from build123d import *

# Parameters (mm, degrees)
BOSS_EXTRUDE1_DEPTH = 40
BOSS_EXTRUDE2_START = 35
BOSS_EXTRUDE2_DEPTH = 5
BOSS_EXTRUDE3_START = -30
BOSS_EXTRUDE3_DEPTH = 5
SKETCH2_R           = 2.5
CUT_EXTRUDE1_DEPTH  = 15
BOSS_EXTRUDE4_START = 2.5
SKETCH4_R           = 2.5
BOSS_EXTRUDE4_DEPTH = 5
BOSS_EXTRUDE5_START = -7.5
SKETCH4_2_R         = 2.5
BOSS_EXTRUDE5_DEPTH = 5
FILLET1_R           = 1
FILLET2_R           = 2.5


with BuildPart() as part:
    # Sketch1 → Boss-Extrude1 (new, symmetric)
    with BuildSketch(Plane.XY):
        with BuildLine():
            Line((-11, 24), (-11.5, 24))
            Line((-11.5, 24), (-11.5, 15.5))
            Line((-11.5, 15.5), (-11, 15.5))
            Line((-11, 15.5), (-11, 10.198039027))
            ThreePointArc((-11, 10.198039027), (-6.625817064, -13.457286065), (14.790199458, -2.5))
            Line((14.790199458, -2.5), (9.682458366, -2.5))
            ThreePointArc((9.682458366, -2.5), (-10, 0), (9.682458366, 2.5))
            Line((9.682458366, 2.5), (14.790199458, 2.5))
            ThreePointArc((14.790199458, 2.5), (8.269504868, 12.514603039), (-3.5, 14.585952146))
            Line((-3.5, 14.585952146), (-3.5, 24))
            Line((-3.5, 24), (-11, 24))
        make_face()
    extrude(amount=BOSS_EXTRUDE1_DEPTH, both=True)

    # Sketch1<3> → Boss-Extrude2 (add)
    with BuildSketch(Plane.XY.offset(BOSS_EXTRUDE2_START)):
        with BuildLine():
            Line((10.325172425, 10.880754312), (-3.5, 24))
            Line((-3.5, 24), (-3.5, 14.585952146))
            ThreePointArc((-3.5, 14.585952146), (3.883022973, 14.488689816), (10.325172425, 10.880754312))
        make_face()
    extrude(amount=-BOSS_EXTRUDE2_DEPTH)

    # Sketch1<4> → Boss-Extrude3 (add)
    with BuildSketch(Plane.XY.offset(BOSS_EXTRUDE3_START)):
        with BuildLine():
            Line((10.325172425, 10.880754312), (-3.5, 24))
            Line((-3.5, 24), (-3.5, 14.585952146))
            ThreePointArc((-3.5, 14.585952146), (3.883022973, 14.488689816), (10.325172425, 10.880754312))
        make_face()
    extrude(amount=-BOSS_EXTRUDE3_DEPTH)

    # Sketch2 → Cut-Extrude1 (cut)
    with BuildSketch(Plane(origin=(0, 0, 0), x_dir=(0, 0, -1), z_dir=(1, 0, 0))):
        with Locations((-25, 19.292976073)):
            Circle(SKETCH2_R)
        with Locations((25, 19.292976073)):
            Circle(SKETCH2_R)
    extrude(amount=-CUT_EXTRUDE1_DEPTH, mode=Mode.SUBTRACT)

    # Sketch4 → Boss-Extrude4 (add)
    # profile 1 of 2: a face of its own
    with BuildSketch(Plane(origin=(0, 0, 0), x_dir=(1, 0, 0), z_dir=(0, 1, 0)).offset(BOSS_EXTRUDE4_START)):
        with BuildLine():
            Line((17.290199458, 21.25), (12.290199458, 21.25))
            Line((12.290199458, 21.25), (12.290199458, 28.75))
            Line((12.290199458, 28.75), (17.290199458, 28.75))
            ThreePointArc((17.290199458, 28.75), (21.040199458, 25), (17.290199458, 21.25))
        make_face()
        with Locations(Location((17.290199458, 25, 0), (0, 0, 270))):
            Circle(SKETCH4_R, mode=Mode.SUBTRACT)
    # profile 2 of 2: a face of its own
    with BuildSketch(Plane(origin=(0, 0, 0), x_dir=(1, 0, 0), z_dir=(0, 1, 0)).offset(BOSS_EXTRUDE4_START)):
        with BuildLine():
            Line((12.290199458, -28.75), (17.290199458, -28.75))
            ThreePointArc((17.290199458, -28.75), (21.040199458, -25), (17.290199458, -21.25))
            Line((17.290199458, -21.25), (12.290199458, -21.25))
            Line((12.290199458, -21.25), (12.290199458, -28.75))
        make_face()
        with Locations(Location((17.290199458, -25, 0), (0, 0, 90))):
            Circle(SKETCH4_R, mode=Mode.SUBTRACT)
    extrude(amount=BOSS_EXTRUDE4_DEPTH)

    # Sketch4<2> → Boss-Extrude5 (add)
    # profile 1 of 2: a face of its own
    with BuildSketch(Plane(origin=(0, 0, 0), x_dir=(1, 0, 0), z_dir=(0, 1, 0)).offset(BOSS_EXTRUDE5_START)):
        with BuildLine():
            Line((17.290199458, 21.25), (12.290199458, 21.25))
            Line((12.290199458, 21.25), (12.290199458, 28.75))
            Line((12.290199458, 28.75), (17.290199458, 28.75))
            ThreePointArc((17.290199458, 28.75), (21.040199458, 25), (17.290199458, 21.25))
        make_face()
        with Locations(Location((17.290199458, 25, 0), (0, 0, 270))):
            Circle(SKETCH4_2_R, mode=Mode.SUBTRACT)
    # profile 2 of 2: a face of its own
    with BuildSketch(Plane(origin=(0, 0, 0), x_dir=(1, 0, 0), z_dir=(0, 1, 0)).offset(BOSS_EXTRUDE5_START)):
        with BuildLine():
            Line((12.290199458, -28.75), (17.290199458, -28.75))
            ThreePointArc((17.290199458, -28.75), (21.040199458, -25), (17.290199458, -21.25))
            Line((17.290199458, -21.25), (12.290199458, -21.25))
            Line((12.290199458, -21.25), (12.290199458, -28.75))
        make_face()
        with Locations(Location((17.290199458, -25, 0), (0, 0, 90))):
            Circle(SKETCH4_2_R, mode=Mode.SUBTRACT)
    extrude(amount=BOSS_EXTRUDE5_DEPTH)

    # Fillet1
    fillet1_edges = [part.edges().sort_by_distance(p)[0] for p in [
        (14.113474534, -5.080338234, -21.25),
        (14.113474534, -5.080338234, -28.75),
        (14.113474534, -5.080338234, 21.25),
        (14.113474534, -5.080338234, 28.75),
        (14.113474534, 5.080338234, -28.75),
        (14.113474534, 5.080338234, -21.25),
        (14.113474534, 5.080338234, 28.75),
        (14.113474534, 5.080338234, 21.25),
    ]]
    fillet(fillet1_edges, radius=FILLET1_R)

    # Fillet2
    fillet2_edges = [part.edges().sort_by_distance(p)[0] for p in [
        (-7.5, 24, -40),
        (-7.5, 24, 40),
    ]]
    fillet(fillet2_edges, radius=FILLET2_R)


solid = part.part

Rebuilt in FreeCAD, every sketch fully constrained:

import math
import FreeCAD as App
import Part
import Sketcher
Q = App.Units.Quantity


def edges_at(feature, points):
    """Names of the edges that pass closest to the given points."""
    edges = feature.Shape.Edges
    near = lambda p: min(range(len(edges)), key=lambda i: edges[i].distToShape(Part.Vertex(*p))[0])
    return sorted({f"Edge{near(p) + 1}" for p in points})

doc = App.newDocument("Part")
params = doc.addObject("Spreadsheet::Sheet", "Params")
for row, (alias, value) in enumerate([
    ("sketch1_radius", "15 mm"),
    ("sketch1_radius2", "10 mm"),
    ("sketch1_width", "8 mm"),
    ("sketch1_width2", "0.5 mm"),
    ("sketch1_height", "8.5 mm"),
    ("pad1_length", "80 mm"),
    ("sketch2_radius", "15 mm"),
    ("pad2_length", "5 mm"),
    ("sketch3_radius", "15 mm"),
    ("pad3_length", "5 mm"),
    ("sketch4_diameter", "5 mm"),
    ("pocket1_length", "15 mm"),
    ("sketch5_diameter", "5 mm"),
    ("sketch5_width", "5 mm"),
    ("sketch5_radius", "3.75 mm"),
    ("pad4_length", "5 mm"),
    ("sketch6_diameter", "5 mm"),
    ("sketch6_width", "5 mm"),
    ("sketch6_radius", "3.75 mm"),
    ("pad5_length", "5 mm"),
    ("fillet_radius", "1 mm"),
    ("fillet2_radius", "2.5 mm"),
], start=1):
    params.set(f"A{row}", alias)
    params.set(f"B{row}", "=" + value)
    params.setAlias(f"B{row}", alias)

body = doc.addObject("PartDesign::Body", "Body")

sketch1 = body.newObject("Sketcher::SketchObject", "Sketch")
sketch1.AttachmentSupport = (doc.getObject("XY_Plane"), [""])
sketch1.MapMode = "FlatFace"
sketch1.addGeometry([
    Part.LineSegment(App.Vector(-11.5, 24, 0), App.Vector(-11.5, 15.5, 0)),
    Part.LineSegment(App.Vector(-11.5, 15.5, 0), App.Vector(-11, 15.5, 0)),
    Part.LineSegment(App.Vector(-11, 15.5, 0), App.Vector(-11, 10.2, 0)),
    Part.ArcOfCircle(Part.Circle(App.Vector(0, 0, 0), App.Vector(0, 0, 1), 15), math.radians(137), math.radians(350)),
    Part.LineSegment(App.Vector(14.8, -2.5, 0), App.Vector(9.7, -2.5, 0)),
    Part.ArcOfCircle(Part.Circle(App.Vector(0, 0, 0), App.Vector(0, 0, 1), 10), math.radians(14), math.radians(346)),
    Part.LineSegment(App.Vector(9.7, 2.5, 0), App.Vector(14.8, 2.5, 0)),
    Part.ArcOfCircle(Part.Circle(App.Vector(0, 0, 0), App.Vector(0, 0, 1), 15), math.radians(10), math.radians(103)),
    Part.LineSegment(App.Vector(-3.5, 14.6, 0), App.Vector(-3.5, 24, 0)),
    Part.LineSegment(App.Vector(-3.5, 24, 0), App.Vector(-11.5, 24, 0)),
], False)
sketch1.addConstraint([
    Sketcher.Constraint("Coincident", 0, 2, 1, 1),
    Sketcher.Constraint("Coincident", 1, 2, 2, 1),
    Sketcher.Constraint("Coincident", 2, 2, 3, 1),
    Sketcher.Constraint("Coincident", 3, 2, 4, 1),
    Sketcher.Constraint("Coincident", 4, 2, 5, 2),
    Sketcher.Constraint("Coincident", 5, 1, 6, 1),
    Sketcher.Constraint("Coincident", 6, 2, 7, 1),
    Sketcher.Constraint("Coincident", 7, 2, 8, 1),
    Sketcher.Constraint("Coincident", 8, 2, 9, 1),
    Sketcher.Constraint("Coincident", 9, 2, 0, 1),
    Sketcher.Constraint("Vertical", 0),
    Sketcher.Constraint("Horizontal", 1),
    Sketcher.Constraint("Vertical", 2),
    Sketcher.Constraint("Horizontal", 4),
    Sketcher.Constraint("Horizontal", 6),
    Sketcher.Constraint("Vertical", 8),
    Sketcher.Constraint("Horizontal", 9),
    Sketcher.Constraint("Coincident", 3, 3, -1, 1),
    Sketcher.Constraint("Coincident", 5, 3, -1, 1),
    Sketcher.Constraint("Coincident", 7, 3, -1, 1),
    Sketcher.Constraint("Equal", 3, 7),
    Sketcher.Constraint("Vertical", 4, 2, 5, 1),
    Sketcher.Constraint("Radius", 3, Q("15 mm")),
    Sketcher.Constraint("Radius", 5, Q("10 mm")),
    Sketcher.Constraint("DistanceX", 9, 2, 9, 1, Q("8 mm")),
    Sketcher.Constraint("DistanceX", 1, 1, 1, 2, Q("0.5 mm")),
    Sketcher.Constraint("DistanceY", 0, 2, 0, 1, Q("8.5 mm")),
    Sketcher.Constraint("DistanceX", 1, 2, -1, 1, Q("11 mm")),
    Sketcher.Constraint("DistanceY", -1, 1, 8, 2, Q("24 mm")),
    Sketcher.Constraint("DistanceY", 3, 2, 1, 2, Q("18 mm")),
])
sketch1.setExpression("Constraints[22]", "Params.sketch1_radius")
sketch1.setExpression("Constraints[23]", "Params.sketch1_radius2")
sketch1.setExpression("Constraints[24]", "Params.sketch1_width")
sketch1.setExpression("Constraints[25]", "Params.sketch1_width2")
sketch1.setExpression("Constraints[26]", "Params.sketch1_height")
pad1 = body.newObject("PartDesign::Pad", "Pad")
pad1.Profile = sketch1
pad1.setExpression("Length", "Params.pad1_length")
pad1.Midplane = True

sketch2 = body.newObject("Sketcher::SketchObject", "Sketch001")
sketch2.AttachmentSupport = (doc.getObject("XY_Plane"), [""])
sketch2.MapMode = "FlatFace"
sketch2.AttachmentOffset = App.Placement(App.Vector(0, 0, 35), App.Rotation())
sketch2.addGeometry([
    Part.LineSegment(App.Vector(10, 11, 0), App.Vector(-4, 24, 0)),
    Part.LineSegment(App.Vector(-4, 24, 0), App.Vector(-4, 15, 0)),
    Part.ArcOfCircle(Part.Circle(App.Vector(0, 0, 0), App.Vector(0, 0, 1), 15), math.radians(47), math.radians(103)),
], False)
sketch2.addConstraint([
    Sketcher.Constraint("Coincident", 0, 2, 1, 1),
    Sketcher.Constraint("Coincident", 1, 2, 2, 2),
    Sketcher.Constraint("Tangent", 2, 1, 0, 1),
    Sketcher.Constraint("Vertical", 1),
    Sketcher.Constraint("Coincident", 2, 3, -1, 1),
    Sketcher.Constraint("Radius", 2, Q("15 mm")),
    Sketcher.Constraint("DistanceY", -1, 1, 0, 2, Q("24 mm")),
    Sketcher.Constraint("DistanceX", 0, 2, -1, 1, Q("3.5 mm")),
])
sketch2.setExpression("Constraints[5]", "Params.sketch2_radius")
pad2 = body.newObject("PartDesign::Pad", "Pad001")
pad2.Profile = sketch2
pad2.setExpression("Length", "Params.pad2_length")
pad2.Reversed = True

sketch3 = body.newObject("Sketcher::SketchObject", "Sketch002")
sketch3.AttachmentSupport = (doc.getObject("XY_Plane"), [""])
sketch3.MapMode = "FlatFace"
sketch3.AttachmentOffset = App.Placement(App.Vector(0, 0, -30), App.Rotation())
sketch3.addGeometry([
    Part.LineSegment(App.Vector(10, 11, 0), App.Vector(-4, 24, 0)),
    Part.LineSegment(App.Vector(-4, 24, 0), App.Vector(-4, 15, 0)),
    Part.ArcOfCircle(Part.Circle(App.Vector(0, 0, 0), App.Vector(0, 0, 1), 15), math.radians(47), math.radians(103)),
], False)
sketch3.addConstraint([
    Sketcher.Constraint("Coincident", 0, 2, 1, 1),
    Sketcher.Constraint("Coincident", 1, 2, 2, 2),
    Sketcher.Constraint("Tangent", 2, 1, 0, 1),
    Sketcher.Constraint("Vertical", 1),
    Sketcher.Constraint("Coincident", 2, 3, -1, 1),
    Sketcher.Constraint("Radius", 2, Q("15 mm")),
    Sketcher.Constraint("DistanceY", -1, 1, 0, 2, Q("24 mm")),
    Sketcher.Constraint("DistanceX", 0, 2, -1, 1, Q("3.5 mm")),
])
sketch3.setExpression("Constraints[5]", "Params.sketch3_radius")
pad3 = body.newObject("PartDesign::Pad", "Pad002")
pad3.Profile = sketch3
pad3.setExpression("Length", "Params.pad3_length")
pad3.Reversed = True

sketch4 = body.newObject("Sketcher::SketchObject", "Sketch003")
sketch4.AttachmentSupport = (doc.getObject("YZ_Plane"), [""])
sketch4.MapMode = "FlatFace"
sketch4.addGeometry([
    Part.Circle(App.Vector(19.3, 25, 0), App.Vector(0, 0, 1), 2.5),
    Part.Circle(App.Vector(19.3, -25, 0), App.Vector(0, 0, 1), 2.5),
], False)
sketch4.addConstraint([
    Sketcher.Constraint("Equal", 0, 1),
    Sketcher.Constraint("Symmetric", 0, 3, 1, 3, -1),
    Sketcher.Constraint("Diameter", 0, Q("5 mm")),
    Sketcher.Constraint("DistanceY", -1, 1, 0, 3, Q("25 mm")),
    Sketcher.Constraint("DistanceX", -1, 1, 0, 3, Q("19.292976 mm")),
])
sketch4.setExpression("Constraints[2]", "Params.sketch4_diameter")
pocket1 = body.newObject("PartDesign::Pocket", "Pocket")
pocket1.Profile = sketch4
pocket1.setExpression("Length", "Params.pocket1_length")

sketch5 = body.newObject("Sketcher::SketchObject", "Sketch004")
sketch5.AttachmentSupport = (doc.getObject("XZ_Plane"), [""])
sketch5.MapMode = "FlatFace"
sketch5.AttachmentOffset = App.Placement(App.Vector(0, 0, -2.5), App.Rotation())
sketch5.addGeometry([
    Part.LineSegment(App.Vector(12.3, -21.2, 0), App.Vector(17.3, -21.2, 0)),
    Part.ArcOfCircle(Part.Circle(App.Vector(17.3, -25, 0), App.Vector(0, 0, 1), 3.8), math.radians(-90), math.radians(90)),
    Part.LineSegment(App.Vector(17.3, -28.8, 0), App.Vector(12.3, -28.8, 0)),
    Part.LineSegment(App.Vector(12.3, -28.8, 0), App.Vector(12.3, -21.2, 0)),
    Part.Circle(App.Vector(17.3, -25, 0), App.Vector(0, 0, 1), 2.5),
    Part.LineSegment(App.Vector(12.3, 28.8, 0), App.Vector(17.3, 28.8, 0)),
    Part.ArcOfCircle(Part.Circle(App.Vector(17.3, 25, 0), App.Vector(0, 0, 1), 3.8), math.radians(-90), math.radians(90)),
    Part.LineSegment(App.Vector(17.3, 21.2, 0), App.Vector(12.3, 21.2, 0)),
    Part.LineSegment(App.Vector(12.3, 21.2, 0), App.Vector(12.3, 28.8, 0)),
    Part.Circle(App.Vector(17.3, 25, 0), App.Vector(0, 0, 1), 2.5),
], False)
sketch5.addConstraint([
    Sketcher.Constraint("Tangent", 0, 2, 1, 2),
    Sketcher.Constraint("Tangent", 1, 1, 2, 1),
    Sketcher.Constraint("Coincident", 2, 2, 3, 1),
    Sketcher.Constraint("Coincident", 3, 2, 0, 1),
    Sketcher.Constraint("Tangent", 5, 2, 6, 2),
    Sketcher.Constraint("Tangent", 6, 1, 7, 1),
    Sketcher.Constraint("Coincident", 7, 2, 8, 1),
    Sketcher.Constraint("Coincident", 8, 2, 5, 1),
    Sketcher.Constraint("Horizontal", 0),
    Sketcher.Constraint("Horizontal", 2),
    Sketcher.Constraint("Vertical", 3),
    Sketcher.Constraint("Horizontal", 5),
    Sketcher.Constraint("Horizontal", 7),
    Sketcher.Constraint("Vertical", 8),
    Sketcher.Constraint("Coincident", 4, 3, 1, 3),
    Sketcher.Constraint("Coincident", 9, 3, 6, 3),
    Sketcher.Constraint("Equal", 1, 6),
    Sketcher.Constraint("Equal", 4, 9),
    Sketcher.Constraint("Symmetric", 1, 3, 6, 3, -1),
    Sketcher.Constraint("Vertical", 3, 2, 7, 2),
    Sketcher.Constraint("Diameter", 4, Q("5 mm")),
    Sketcher.Constraint("DistanceX", 0, 1, 0, 2, Q("5 mm")),
    Sketcher.Constraint("Radius", 1, Q("3.75 mm")),
    Sketcher.Constraint("DistanceY", 1, 3, -1, 1, Q("25 mm")),
    Sketcher.Constraint("DistanceX", -1, 1, 1, 3, Q("17.290199 mm")),
])
sketch5.setExpression("Constraints[20]", "Params.sketch5_diameter")
sketch5.setExpression("Constraints[21]", "Params.sketch5_width")
sketch5.setExpression("Constraints[22]", "Params.sketch5_radius")
pad4 = body.newObject("PartDesign::Pad", "Pad003")
pad4.Profile = sketch5
pad4.setExpression("Length", "Params.pad4_length")
pad4.Reversed = True

sketch6 = body.newObject("Sketcher::SketchObject", "Sketch005")
sketch6.AttachmentSupport = (doc.getObject("XZ_Plane"), [""])
sketch6.MapMode = "FlatFace"
sketch6.AttachmentOffset = App.Placement(App.Vector(0, 0, 7.5), App.Rotation())
sketch6.addGeometry([
    Part.LineSegment(App.Vector(12.3, -21.2, 0), App.Vector(17.3, -21.2, 0)),
    Part.ArcOfCircle(Part.Circle(App.Vector(17.3, -25, 0), App.Vector(0, 0, 1), 3.8), math.radians(-90), math.radians(90)),
    Part.LineSegment(App.Vector(17.3, -28.8, 0), App.Vector(12.3, -28.8, 0)),
    Part.LineSegment(App.Vector(12.3, -28.8, 0), App.Vector(12.3, -21.2, 0)),
    Part.Circle(App.Vector(17.3, -25, 0), App.Vector(0, 0, 1), 2.5),
    Part.LineSegment(App.Vector(12.3, 28.8, 0), App.Vector(17.3, 28.8, 0)),
    Part.ArcOfCircle(Part.Circle(App.Vector(17.3, 25, 0), App.Vector(0, 0, 1), 3.8), math.radians(-90), math.radians(90)),
    Part.LineSegment(App.Vector(17.3, 21.2, 0), App.Vector(12.3, 21.2, 0)),
    Part.LineSegment(App.Vector(12.3, 21.2, 0), App.Vector(12.3, 28.8, 0)),
    Part.Circle(App.Vector(17.3, 25, 0), App.Vector(0, 0, 1), 2.5),
], False)
sketch6.addConstraint([
    Sketcher.Constraint("Tangent", 0, 2, 1, 2),
    Sketcher.Constraint("Tangent", 1, 1, 2, 1),
    Sketcher.Constraint("Coincident", 2, 2, 3, 1),
    Sketcher.Constraint("Coincident", 3, 2, 0, 1),
    Sketcher.Constraint("Tangent", 5, 2, 6, 2),
    Sketcher.Constraint("Tangent", 6, 1, 7, 1),
    Sketcher.Constraint("Coincident", 7, 2, 8, 1),
    Sketcher.Constraint("Coincident", 8, 2, 5, 1),
    Sketcher.Constraint("Horizontal", 0),
    Sketcher.Constraint("Horizontal", 2),
    Sketcher.Constraint("Vertical", 3),
    Sketcher.Constraint("Horizontal", 5),
    Sketcher.Constraint("Horizontal", 7),
    Sketcher.Constraint("Vertical", 8),
    Sketcher.Constraint("Coincident", 4, 3, 1, 3),
    Sketcher.Constraint("Coincident", 9, 3, 6, 3),
    Sketcher.Constraint("Equal", 1, 6),
    Sketcher.Constraint("Equal", 4, 9),
    Sketcher.Constraint("Symmetric", 1, 3, 6, 3, -1),
    Sketcher.Constraint("Vertical", 3, 2, 7, 2),
    Sketcher.Constraint("Diameter", 4, Q("5 mm")),
    Sketcher.Constraint("DistanceX", 0, 1, 0, 2, Q("5 mm")),
    Sketcher.Constraint("Radius", 1, Q("3.75 mm")),
    Sketcher.Constraint("DistanceY", 1, 3, -1, 1, Q("25 mm")),
    Sketcher.Constraint("DistanceX", -1, 1, 1, 3, Q("17.290199 mm")),
])
sketch6.setExpression("Constraints[20]", "Params.sketch6_diameter")
sketch6.setExpression("Constraints[21]", "Params.sketch6_width")
sketch6.setExpression("Constraints[22]", "Params.sketch6_radius")
pad5 = body.newObject("PartDesign::Pad", "Pad004")
pad5.Profile = sketch6
pad5.setExpression("Length", "Params.pad5_length")
pad5.Reversed = True
doc.recompute()

fillet = body.newObject("PartDesign::Fillet", "Fillet")
fillet.Base = (pad5, edges_at(pad5, [
    (14.113, -5.08, -21.25),
    (14.113, -5.08, -28.75),
    (14.113, -5.08, 21.25),
    (14.113, -5.08, 28.75),
    (14.113, 5.08, -28.75),
    (14.113, 5.08, -21.25),
    (14.113, 5.08, 28.75),
    (14.113, 5.08, 21.25),
]))
fillet.setExpression("Radius", "Params.fillet_radius")
doc.recompute()

fillet2 = body.newObject("PartDesign::Fillet", "Fillet001")
fillet2.Base = (fillet, edges_at(fillet, [(-7.5, 24, -40), (-7.5, 24, 40)]))
fillet2.setExpression("Radius", "Params.fillet2_radius")

doc.recompute()
